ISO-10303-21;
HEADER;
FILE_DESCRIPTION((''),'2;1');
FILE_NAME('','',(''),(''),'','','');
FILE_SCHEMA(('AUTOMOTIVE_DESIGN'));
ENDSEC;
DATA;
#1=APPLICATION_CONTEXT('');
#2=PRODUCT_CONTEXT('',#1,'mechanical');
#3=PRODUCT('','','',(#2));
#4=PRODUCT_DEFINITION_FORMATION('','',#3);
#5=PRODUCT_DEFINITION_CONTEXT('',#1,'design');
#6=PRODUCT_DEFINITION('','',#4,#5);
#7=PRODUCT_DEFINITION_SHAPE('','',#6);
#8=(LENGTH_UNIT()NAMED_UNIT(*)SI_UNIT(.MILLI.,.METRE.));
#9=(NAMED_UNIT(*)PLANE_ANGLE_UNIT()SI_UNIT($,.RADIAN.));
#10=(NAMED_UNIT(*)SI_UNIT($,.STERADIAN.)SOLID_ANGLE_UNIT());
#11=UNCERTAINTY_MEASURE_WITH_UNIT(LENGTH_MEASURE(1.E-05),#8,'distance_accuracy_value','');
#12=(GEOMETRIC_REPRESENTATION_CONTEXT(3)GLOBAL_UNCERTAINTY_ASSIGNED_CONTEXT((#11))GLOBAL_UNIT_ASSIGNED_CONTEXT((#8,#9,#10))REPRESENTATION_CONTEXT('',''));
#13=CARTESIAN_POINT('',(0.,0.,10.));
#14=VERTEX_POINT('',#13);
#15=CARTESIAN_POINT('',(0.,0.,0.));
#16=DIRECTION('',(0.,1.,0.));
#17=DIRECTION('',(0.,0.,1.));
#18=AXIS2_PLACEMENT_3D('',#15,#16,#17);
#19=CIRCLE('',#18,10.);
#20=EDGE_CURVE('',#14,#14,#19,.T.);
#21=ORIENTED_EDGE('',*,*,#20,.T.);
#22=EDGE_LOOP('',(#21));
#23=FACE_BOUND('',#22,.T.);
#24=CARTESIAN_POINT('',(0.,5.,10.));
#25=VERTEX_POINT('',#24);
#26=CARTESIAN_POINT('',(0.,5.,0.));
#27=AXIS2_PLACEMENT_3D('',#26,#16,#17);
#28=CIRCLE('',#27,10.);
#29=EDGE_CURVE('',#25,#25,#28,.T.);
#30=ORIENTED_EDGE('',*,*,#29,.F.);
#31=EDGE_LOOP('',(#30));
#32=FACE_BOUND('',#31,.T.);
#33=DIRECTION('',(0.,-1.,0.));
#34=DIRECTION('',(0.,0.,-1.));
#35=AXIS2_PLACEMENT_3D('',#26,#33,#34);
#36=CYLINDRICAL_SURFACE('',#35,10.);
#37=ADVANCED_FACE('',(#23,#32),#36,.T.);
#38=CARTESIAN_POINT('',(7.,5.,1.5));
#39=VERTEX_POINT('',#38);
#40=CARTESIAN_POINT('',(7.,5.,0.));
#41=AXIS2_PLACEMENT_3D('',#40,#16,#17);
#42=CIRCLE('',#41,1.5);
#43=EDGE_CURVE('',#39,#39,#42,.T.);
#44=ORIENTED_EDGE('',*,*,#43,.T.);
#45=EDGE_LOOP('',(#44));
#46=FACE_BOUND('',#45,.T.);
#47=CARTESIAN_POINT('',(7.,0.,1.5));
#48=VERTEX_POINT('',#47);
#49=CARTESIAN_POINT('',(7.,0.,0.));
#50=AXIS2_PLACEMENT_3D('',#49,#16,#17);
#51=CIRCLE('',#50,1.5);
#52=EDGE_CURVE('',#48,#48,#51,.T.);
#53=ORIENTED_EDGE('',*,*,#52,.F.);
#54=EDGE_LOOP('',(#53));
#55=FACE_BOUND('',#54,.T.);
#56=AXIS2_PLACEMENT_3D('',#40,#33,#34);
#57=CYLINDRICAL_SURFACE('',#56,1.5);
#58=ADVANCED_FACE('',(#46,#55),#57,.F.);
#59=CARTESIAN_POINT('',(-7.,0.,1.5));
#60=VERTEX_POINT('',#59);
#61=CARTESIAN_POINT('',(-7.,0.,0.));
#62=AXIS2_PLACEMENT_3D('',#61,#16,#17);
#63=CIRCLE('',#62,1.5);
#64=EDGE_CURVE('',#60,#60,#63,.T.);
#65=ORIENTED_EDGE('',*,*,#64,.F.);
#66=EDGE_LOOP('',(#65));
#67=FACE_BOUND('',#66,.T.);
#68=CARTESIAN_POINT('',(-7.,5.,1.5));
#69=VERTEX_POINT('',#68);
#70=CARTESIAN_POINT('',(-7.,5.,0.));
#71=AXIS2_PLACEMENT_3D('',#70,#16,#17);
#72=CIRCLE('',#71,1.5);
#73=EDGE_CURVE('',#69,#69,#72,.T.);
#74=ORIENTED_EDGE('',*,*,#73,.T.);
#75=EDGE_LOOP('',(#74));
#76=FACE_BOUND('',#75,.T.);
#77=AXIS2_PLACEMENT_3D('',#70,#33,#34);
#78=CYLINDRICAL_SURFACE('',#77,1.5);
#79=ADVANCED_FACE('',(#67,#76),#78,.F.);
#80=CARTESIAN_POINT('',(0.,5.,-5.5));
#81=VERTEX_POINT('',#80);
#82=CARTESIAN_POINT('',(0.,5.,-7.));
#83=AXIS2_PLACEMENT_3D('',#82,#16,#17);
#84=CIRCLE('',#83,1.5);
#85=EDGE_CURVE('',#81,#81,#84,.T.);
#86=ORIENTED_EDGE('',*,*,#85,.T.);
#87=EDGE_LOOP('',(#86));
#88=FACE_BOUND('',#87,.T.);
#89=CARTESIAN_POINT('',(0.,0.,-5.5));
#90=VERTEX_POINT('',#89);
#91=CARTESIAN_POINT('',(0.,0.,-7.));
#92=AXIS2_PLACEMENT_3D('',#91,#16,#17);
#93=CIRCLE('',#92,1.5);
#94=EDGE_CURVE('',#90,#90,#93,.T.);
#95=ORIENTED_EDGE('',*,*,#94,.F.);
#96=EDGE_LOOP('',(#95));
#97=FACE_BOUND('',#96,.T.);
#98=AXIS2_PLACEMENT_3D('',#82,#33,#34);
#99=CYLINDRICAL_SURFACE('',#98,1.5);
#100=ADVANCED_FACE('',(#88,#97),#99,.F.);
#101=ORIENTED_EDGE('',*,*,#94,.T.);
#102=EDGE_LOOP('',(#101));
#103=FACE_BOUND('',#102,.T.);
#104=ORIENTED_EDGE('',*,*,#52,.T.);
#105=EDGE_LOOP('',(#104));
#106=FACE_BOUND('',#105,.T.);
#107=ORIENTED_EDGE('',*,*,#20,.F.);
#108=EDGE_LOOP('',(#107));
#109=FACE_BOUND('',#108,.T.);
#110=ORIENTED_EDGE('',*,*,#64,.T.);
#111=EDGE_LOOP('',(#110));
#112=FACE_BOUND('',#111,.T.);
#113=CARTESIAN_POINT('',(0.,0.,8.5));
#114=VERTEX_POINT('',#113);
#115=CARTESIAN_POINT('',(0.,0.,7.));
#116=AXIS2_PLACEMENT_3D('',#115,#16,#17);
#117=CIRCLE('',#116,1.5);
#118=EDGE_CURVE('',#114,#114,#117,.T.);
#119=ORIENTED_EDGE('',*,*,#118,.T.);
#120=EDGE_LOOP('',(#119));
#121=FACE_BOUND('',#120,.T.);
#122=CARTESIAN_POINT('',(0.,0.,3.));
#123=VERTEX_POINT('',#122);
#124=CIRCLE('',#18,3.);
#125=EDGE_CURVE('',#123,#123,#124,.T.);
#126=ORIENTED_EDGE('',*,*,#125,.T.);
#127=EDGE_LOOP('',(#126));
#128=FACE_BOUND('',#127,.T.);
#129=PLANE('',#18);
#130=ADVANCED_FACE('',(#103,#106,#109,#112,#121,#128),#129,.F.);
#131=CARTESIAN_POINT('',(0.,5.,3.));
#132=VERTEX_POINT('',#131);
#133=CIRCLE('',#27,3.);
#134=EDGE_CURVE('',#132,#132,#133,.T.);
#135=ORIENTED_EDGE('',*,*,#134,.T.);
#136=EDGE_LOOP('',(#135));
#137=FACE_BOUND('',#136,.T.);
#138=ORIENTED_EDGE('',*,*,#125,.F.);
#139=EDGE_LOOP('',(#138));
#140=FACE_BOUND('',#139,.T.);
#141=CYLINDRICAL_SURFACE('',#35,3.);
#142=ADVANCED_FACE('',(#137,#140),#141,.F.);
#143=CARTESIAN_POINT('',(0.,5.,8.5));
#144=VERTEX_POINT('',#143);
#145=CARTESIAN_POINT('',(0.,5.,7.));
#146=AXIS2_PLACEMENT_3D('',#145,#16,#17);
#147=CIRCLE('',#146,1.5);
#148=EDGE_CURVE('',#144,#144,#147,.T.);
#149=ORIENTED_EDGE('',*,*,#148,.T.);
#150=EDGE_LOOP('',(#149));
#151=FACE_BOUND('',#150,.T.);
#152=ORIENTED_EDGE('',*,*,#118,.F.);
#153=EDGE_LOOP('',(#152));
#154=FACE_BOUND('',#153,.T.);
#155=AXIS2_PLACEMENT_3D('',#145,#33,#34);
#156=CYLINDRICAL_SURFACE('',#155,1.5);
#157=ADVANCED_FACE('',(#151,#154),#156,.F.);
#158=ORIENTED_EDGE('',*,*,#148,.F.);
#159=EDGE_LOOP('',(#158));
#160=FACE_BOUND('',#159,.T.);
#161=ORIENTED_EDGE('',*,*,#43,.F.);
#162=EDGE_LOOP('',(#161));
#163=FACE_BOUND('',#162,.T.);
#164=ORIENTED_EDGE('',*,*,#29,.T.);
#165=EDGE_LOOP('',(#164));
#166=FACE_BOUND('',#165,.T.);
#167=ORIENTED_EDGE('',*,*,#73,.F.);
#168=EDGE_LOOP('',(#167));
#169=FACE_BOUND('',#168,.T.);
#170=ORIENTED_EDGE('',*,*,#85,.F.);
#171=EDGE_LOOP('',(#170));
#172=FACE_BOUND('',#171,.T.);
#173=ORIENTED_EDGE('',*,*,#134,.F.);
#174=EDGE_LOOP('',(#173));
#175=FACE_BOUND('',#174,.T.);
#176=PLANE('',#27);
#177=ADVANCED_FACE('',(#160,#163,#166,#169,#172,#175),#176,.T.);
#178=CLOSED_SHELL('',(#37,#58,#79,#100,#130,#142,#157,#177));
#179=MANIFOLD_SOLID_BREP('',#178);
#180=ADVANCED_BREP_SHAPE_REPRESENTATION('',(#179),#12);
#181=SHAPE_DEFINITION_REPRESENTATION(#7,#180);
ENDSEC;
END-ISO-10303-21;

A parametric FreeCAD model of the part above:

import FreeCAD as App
import Part
import Sketcher

V = App.Vector
Q = App.Units.Quantity

doc = App.newDocument("Part")
body = doc.addObject("PartDesign::Body", "Body")

# Sketch on XZ plane
sketch1 = body.newObject("Sketcher::SketchObject", "Sketch")
sketch1.AttachmentSupport = (doc.getObject("XZ_Plane"), [""])
sketch1.MapMode = "FlatFace"
sketch1.addGeometry([
    Part.Circle(V(0, 0, 0), V(0, 0, 1), 10),  # 0
    Part.Circle(V(0, -7, 0), V(0, 0, 1), 1.5),  # 1
    Part.Circle(V(-7, 0, 0), V(0, 0, 1), 1.5),  # 2
    Part.Circle(V(7, 0, 0), V(0, 0, 1), 1.5),  # 3
    Part.Circle(V(0, 0, 0), V(0, 0, 1), 3),  # 4
    Part.Circle(V(0, 7, 0), V(0, 0, 1), 1.5),  # 5
], False)
sketch1.addConstraint([
    Sketcher.Constraint("Coincident", 0, 3, -1, 1),
    Sketcher.Constraint("Coincident", 4, 3, -1, 1),
    Sketcher.Constraint("Equal", 1, 2),
    Sketcher.Constraint("Equal", 2, 3),
    Sketcher.Constraint("Equal", 3, 5),
    Sketcher.Constraint("Symmetric", 2, 3, 3, 3, -1, 1),
    Sketcher.Constraint("Symmetric", 1, 3, 5, 3, -1, 1),
    Sketcher.Constraint("PointOnObject", 1, 3, -2),
    Sketcher.Constraint("PointOnObject", 2, 3, -1),
    Sketcher.Constraint("Diameter", 0, Q("20 mm")),
    Sketcher.Constraint("Diameter", 1, Q("3 mm")),
    Sketcher.Constraint("Diameter", 4, Q("6 mm")),
    Sketcher.Constraint("DistanceY", 1, 3, -1, 1, Q("7 mm")),
    Sketcher.Constraint("DistanceX", 2, 3, -1, 1, Q("7 mm")),
])
pad1 = body.newObject("PartDesign::Pad", "Pad")
pad1.Profile = sketch1
pad1.Length = 5
pad1.Reversed = True

doc.recompute()
